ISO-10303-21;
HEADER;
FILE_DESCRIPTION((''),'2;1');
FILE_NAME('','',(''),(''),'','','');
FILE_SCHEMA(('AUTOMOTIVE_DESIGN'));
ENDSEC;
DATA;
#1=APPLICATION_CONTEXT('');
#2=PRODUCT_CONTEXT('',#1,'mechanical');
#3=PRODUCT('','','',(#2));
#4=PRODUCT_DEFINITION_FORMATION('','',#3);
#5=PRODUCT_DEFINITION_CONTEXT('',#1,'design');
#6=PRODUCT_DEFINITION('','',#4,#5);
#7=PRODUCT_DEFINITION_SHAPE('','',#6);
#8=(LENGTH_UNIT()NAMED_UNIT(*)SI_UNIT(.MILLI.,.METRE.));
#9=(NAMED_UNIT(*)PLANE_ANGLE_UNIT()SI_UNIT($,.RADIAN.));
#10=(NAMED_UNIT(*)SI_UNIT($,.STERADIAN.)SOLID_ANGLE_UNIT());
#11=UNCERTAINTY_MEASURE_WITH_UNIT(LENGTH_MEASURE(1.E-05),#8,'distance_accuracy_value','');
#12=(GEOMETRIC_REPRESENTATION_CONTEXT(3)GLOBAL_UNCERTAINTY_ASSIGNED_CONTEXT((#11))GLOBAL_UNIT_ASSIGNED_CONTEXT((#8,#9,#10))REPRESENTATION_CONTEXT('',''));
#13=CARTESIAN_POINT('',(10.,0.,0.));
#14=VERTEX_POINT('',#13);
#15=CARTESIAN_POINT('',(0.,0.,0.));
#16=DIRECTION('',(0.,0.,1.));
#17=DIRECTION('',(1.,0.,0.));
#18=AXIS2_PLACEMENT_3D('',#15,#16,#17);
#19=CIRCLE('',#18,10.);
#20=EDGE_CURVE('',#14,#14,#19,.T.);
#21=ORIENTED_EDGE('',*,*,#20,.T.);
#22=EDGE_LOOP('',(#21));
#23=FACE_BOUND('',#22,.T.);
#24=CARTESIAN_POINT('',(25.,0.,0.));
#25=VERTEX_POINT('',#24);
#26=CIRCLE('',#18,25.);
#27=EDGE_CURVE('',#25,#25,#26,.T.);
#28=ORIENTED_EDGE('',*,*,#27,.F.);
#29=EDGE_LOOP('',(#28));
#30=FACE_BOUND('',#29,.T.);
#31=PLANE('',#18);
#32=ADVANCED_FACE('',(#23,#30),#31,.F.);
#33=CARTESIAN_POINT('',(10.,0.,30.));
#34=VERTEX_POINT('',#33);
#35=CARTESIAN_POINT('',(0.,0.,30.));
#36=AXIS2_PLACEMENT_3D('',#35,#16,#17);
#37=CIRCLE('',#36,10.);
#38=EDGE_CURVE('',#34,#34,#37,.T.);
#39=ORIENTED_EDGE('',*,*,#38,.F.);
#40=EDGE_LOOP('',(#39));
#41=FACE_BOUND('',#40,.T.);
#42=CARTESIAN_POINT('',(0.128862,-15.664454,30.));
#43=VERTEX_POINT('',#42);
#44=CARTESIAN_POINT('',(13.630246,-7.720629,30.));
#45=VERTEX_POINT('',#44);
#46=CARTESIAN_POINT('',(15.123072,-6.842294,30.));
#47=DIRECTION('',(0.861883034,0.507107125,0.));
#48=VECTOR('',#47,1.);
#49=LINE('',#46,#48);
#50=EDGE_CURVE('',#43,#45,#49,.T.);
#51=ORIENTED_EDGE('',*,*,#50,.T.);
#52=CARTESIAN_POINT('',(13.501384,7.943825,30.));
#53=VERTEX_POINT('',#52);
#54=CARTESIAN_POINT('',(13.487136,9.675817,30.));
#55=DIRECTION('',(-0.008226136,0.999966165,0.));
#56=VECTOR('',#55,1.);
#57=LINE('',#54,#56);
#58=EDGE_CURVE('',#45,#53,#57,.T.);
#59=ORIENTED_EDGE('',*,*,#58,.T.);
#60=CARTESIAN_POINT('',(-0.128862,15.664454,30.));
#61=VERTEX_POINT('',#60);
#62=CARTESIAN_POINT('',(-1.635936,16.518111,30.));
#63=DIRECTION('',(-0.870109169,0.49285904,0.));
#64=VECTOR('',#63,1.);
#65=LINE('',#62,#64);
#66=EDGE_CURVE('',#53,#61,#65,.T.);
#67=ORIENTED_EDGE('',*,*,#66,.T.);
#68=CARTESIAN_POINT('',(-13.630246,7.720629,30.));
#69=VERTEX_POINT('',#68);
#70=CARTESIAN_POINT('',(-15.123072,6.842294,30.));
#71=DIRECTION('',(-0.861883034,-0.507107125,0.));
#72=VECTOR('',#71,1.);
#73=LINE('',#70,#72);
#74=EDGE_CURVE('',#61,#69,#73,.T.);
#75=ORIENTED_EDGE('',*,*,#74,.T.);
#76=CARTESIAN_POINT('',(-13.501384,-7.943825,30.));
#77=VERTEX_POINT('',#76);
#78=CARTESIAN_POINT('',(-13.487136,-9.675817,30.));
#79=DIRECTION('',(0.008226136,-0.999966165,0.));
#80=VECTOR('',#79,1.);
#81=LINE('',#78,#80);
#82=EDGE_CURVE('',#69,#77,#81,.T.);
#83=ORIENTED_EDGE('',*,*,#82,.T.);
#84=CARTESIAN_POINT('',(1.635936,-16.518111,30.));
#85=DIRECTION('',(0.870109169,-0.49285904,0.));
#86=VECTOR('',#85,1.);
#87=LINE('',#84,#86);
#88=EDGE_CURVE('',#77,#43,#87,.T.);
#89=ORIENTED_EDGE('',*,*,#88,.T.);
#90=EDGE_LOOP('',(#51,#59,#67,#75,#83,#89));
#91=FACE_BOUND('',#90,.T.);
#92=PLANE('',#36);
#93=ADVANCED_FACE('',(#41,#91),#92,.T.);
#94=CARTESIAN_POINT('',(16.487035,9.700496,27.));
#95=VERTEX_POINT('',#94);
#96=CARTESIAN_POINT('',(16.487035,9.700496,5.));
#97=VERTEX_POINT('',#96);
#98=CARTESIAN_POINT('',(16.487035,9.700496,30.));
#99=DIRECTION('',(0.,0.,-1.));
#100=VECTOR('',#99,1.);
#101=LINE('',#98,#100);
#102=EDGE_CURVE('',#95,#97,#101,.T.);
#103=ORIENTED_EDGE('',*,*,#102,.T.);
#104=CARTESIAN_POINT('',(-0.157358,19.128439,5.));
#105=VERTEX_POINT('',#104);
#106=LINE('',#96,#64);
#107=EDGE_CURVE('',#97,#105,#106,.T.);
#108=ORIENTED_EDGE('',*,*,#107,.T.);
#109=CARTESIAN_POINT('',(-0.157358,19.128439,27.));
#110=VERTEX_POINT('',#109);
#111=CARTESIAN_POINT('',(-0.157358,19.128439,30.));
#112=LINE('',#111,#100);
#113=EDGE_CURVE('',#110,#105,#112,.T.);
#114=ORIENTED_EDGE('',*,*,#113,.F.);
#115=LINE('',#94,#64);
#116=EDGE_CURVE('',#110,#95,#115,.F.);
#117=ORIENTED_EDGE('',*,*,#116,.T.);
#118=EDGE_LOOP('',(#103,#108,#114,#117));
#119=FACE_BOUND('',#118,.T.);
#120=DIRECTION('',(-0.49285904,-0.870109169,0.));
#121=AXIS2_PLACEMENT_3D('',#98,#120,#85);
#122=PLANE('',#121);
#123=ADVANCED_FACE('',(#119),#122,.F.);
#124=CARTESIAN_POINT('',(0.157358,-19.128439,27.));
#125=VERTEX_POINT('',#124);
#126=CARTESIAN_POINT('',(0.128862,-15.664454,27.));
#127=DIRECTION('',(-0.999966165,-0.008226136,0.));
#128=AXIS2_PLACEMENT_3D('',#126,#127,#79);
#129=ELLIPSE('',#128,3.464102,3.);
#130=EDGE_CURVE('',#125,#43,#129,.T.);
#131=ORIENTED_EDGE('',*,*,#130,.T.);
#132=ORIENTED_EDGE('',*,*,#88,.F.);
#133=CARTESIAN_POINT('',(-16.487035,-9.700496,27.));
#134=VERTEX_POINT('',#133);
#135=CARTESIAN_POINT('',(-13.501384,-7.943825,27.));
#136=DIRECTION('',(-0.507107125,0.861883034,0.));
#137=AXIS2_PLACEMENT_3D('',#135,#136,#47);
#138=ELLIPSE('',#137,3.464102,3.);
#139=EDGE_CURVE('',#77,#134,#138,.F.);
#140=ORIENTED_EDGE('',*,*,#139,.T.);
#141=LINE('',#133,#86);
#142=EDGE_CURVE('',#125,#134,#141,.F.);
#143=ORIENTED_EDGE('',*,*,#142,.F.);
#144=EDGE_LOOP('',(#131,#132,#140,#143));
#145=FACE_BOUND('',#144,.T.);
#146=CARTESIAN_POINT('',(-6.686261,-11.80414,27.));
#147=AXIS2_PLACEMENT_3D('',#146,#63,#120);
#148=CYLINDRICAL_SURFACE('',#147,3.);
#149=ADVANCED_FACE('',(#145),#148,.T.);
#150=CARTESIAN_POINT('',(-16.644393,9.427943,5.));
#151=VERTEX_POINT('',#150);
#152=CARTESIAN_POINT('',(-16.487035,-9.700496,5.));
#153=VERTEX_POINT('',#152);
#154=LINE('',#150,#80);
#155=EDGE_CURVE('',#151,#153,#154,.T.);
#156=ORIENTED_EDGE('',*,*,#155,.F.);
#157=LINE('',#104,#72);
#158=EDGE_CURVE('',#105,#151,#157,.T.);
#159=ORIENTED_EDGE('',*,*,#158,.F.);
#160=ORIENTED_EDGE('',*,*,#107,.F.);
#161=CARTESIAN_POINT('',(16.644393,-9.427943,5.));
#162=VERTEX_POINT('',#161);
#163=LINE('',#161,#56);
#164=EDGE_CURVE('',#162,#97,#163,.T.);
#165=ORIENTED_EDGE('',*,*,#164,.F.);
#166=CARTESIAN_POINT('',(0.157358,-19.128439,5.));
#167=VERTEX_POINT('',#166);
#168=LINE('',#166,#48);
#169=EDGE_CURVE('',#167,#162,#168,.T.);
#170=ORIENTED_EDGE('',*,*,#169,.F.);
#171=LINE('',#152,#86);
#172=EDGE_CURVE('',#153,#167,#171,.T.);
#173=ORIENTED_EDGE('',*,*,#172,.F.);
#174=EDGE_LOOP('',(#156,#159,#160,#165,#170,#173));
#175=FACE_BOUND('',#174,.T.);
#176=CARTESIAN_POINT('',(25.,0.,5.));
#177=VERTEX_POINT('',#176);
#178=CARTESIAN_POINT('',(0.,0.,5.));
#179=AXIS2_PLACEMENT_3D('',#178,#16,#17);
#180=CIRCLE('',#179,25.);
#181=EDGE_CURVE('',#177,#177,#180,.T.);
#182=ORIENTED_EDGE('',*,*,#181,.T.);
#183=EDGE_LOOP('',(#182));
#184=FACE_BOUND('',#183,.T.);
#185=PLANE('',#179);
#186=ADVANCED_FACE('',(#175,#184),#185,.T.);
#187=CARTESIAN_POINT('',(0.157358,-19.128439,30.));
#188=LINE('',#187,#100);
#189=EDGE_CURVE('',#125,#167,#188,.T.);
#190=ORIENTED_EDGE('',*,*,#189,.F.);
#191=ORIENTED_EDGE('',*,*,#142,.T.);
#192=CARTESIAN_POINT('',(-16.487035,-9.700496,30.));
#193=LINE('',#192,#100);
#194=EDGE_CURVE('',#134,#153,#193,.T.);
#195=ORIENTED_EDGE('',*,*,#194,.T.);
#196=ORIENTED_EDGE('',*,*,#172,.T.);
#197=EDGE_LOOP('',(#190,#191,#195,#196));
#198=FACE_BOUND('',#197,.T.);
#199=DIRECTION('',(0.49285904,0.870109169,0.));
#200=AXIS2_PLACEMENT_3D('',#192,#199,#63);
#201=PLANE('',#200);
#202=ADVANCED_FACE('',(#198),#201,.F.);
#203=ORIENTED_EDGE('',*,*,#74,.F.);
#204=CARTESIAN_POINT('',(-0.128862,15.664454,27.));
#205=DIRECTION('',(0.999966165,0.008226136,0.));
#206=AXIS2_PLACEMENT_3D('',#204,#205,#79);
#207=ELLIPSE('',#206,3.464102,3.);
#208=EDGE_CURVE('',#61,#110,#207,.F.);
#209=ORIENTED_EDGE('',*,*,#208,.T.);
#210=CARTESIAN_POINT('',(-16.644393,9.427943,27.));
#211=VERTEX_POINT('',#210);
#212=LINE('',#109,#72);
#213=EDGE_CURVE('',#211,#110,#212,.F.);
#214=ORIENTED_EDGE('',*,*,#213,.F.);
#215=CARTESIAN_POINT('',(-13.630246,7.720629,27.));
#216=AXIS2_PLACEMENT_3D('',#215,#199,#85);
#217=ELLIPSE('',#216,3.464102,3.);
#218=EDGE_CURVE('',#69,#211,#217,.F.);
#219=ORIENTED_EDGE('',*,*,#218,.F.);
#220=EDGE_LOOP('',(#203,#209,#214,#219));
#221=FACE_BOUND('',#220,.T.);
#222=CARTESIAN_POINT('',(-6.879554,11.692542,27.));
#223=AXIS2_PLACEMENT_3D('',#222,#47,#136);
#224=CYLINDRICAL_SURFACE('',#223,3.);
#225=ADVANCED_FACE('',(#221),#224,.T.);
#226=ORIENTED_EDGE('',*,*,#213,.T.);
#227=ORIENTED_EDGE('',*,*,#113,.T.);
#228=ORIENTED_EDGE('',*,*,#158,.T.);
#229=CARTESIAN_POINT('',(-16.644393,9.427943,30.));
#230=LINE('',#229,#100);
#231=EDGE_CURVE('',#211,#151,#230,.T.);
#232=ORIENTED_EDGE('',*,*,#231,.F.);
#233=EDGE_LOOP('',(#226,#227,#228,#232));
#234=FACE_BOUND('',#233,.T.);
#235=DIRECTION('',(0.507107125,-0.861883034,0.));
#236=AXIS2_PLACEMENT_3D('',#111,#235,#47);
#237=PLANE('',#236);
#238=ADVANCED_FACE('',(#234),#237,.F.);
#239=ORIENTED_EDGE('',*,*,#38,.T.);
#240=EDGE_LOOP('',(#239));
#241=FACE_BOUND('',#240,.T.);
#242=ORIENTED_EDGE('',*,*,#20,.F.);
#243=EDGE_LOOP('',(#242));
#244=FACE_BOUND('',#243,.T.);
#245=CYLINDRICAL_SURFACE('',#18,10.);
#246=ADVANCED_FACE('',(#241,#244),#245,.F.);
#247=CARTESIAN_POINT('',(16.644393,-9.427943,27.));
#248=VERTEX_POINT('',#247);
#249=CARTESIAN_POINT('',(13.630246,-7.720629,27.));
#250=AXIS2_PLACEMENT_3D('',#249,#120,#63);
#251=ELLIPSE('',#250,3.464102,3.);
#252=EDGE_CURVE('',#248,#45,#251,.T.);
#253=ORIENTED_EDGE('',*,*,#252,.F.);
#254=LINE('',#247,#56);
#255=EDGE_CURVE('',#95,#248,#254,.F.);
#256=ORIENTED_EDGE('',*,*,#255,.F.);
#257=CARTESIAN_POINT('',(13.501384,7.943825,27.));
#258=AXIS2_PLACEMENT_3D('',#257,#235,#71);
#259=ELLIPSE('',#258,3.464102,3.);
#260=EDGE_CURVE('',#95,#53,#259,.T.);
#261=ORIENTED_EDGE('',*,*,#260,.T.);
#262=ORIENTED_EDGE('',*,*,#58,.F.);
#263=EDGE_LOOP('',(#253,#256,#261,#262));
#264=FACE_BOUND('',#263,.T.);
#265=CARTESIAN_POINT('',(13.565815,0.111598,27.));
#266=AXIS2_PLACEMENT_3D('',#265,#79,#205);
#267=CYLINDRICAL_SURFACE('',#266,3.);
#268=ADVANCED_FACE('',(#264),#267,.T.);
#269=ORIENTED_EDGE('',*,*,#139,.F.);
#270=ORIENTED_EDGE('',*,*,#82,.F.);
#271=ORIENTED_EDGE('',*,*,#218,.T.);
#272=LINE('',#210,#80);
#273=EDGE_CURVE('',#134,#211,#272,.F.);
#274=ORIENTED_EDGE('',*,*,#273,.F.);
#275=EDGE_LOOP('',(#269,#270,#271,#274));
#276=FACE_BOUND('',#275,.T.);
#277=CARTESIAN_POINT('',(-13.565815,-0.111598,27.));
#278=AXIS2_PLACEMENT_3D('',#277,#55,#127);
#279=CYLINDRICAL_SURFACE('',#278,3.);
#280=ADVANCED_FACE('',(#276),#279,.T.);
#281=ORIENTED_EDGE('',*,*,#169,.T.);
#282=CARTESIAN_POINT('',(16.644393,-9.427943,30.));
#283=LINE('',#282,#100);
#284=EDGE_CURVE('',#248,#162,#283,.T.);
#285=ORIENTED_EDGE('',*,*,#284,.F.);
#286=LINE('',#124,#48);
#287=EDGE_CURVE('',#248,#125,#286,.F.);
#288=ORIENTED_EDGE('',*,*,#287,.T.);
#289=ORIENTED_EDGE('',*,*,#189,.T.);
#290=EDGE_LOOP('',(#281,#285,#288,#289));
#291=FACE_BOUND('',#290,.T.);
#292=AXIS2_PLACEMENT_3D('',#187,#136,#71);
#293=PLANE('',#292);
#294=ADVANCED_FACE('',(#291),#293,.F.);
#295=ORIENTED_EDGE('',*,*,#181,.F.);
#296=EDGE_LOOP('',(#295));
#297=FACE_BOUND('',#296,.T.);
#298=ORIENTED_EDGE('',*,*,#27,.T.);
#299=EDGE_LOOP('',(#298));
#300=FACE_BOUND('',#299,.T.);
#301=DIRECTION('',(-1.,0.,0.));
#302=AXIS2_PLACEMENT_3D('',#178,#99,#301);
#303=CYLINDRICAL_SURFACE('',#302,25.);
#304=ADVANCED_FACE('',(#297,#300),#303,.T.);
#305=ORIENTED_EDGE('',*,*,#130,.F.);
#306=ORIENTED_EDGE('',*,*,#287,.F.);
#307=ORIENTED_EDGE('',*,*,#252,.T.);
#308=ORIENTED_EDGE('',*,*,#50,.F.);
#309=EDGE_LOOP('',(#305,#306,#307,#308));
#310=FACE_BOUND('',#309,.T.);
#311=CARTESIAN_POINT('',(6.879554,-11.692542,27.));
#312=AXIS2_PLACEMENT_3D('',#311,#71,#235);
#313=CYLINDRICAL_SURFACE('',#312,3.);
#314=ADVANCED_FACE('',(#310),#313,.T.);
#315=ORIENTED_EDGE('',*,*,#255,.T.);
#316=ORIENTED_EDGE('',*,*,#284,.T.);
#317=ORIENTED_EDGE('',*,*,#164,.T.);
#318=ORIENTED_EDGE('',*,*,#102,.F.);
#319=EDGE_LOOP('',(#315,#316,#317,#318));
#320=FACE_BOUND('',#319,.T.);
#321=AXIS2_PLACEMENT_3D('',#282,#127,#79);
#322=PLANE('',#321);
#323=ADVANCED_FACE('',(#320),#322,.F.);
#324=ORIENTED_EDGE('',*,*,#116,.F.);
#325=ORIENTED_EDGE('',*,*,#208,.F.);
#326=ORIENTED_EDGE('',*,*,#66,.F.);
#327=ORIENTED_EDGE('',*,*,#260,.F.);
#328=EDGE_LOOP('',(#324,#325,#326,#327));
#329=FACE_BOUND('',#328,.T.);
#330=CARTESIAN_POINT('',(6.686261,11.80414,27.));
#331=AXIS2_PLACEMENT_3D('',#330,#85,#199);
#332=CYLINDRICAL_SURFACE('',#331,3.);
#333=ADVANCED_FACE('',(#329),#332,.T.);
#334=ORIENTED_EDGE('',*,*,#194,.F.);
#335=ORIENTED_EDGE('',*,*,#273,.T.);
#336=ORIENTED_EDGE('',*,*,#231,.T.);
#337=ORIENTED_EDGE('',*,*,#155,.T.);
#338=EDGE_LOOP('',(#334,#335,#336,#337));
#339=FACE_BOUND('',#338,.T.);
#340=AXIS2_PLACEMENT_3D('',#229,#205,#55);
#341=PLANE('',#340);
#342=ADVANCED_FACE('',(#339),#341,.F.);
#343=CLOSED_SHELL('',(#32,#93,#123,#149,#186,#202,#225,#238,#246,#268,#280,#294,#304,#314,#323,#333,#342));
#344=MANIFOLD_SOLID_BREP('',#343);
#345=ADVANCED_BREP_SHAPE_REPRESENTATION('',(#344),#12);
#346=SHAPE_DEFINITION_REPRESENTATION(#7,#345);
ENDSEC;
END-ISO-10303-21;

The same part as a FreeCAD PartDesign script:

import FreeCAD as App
import Part
import Sketcher

V = App.Vector
Q = App.Units.Quantity


def edges_at(feature, points):
    """Names of the edges that pass closest to the given points."""
    edges = feature.Shape.Edges
    near = lambda p: min(range(len(edges)), key=lambda i: edges[i].distToShape(Part.Vertex(*p))[0])
    return sorted({f"Edge{near(p) + 1}" for p in points})


def add_polygon(sketch, points):
    """Adds a closed chain of lines whose ends are joined by coincident constraints."""
    first, n = sketch.GeometryCount, len(points)
    for a, b in zip(points, points[1:] + points[:1]):
        sketch.addGeometry(Part.LineSegment(App.Vector(*a, 0), App.Vector(*b, 0)), False)
    for i in range(n):
        sketch.addConstraint(Sketcher.Constraint("Coincident", first + i, 2, first + (i + 1) % n, 1))

doc = App.newDocument("Part")
body = doc.addObject("PartDesign::Body", "Body")

sketch1 = doc.addObject("Sketcher::SketchObject", "Sketch")
body.addObject(sketch1)
sketch1.AttachmentSupport = (doc.XY_Plane, [""])
sketch1.MapMode = "FlatFace"
sketch1.addGeometry(Part.Circle(V(0, 0, 0), V(0, 0, 1), 25), False)
sketch1.addConstraint([
    Sketcher.Constraint("Coincident", 0, 3, -1, 1),
    Sketcher.Constraint("Diameter", 0, Q("50 mm")),
])
pad1 = doc.addObject("PartDesign::Pad", "Pad")
body.addObject(pad1)
pad1.Profile = sketch1
pad1.Length = 5

sketch2 = doc.addObject("Sketcher::SketchObject", "Sketch001")
body.addObject(sketch2)
sketch2.AttachmentSupport = (doc.XY_Plane, [""])
sketch2.MapMode = "FlatFace"
sketch2.AttachmentOffset = App.Placement(V(0, 0, 5), App.Rotation())
add_polygon(sketch2, [(16.644393, -9.427943), (16.487035, 9.700496), (-0.157358, 19.128439), (-16.644393, 9.427943), (-16.487035, -9.700496), (0.157358, -19.128439)])
sketch2.addConstraint([
    Sketcher.Constraint("Symmetric", 0, 2, 3, 2, -1, 1),
    Sketcher.Constraint("Symmetric", 1, 2, 4, 2, -1, 1),
    Sketcher.Constraint("Symmetric", 2, 2, 5, 2, -1, 1),
    Sketcher.Constraint("Equal", 0, 1),
    Sketcher.Constraint("Equal", 1, 2),
    Sketcher.Constraint("DistanceX", 1, 2, -1, 1, Q("0.157358 mm")),
    Sketcher.Constraint("DistanceY", -1, 1, 1, 2, Q("19.128439 mm")),
    Sketcher.Constraint("DistanceX", 2, 2, 3, 2, Q("0.157358 mm")),
    Sketcher.Constraint("DistanceY", 3, 2, 2, 2, Q("19.128439 mm")),
])
pad2 = doc.addObject("PartDesign::Pad", "Pad001")
body.addObject(pad2)
pad2.Profile = sketch2
pad2.Length = 25
doc.recompute()

fillet = doc.addObject("PartDesign::Fillet", "Fillet")
body.addObject(fillet)
fillet.Base = (pad2, edges_at(pad2, [
    (8.401, -14.278, 30),
    (16.566, 0.136, 30),
    (8.165, 14.414, 30),
    (-8.401, 14.278, 30),
    (-16.566, -0.136, 30),
    (-8.165, -14.414, 30),
]))
fillet.Radius = 3

sketch3 = doc.addObject("Sketcher::SketchObject", "Sketch002")
body.addObject(sketch3)
sketch3.AttachmentSupport = (doc.XY_Plane, [""])
sketch3.MapMode = "FlatFace"
sketch3.AttachmentOffset = App.Placement(V(0, 0, 30), App.Rotation())
sketch3.addGeometry(Part.Circle(V(0, 0, 0), V(0, 0, 1), 10), False)
sketch3.addConstraint([
    Sketcher.Constraint("Coincident", 0, 3, -1, 1),
    Sketcher.Constraint("Diameter", 0, Q("20 mm")),
])
pocket1 = doc.addObject("PartDesign::Pocket", "Pocket")
body.addObject(pocket1)
pocket1.Profile = sketch3
pocket1.Type = "ThroughAll"

doc.recompute()
